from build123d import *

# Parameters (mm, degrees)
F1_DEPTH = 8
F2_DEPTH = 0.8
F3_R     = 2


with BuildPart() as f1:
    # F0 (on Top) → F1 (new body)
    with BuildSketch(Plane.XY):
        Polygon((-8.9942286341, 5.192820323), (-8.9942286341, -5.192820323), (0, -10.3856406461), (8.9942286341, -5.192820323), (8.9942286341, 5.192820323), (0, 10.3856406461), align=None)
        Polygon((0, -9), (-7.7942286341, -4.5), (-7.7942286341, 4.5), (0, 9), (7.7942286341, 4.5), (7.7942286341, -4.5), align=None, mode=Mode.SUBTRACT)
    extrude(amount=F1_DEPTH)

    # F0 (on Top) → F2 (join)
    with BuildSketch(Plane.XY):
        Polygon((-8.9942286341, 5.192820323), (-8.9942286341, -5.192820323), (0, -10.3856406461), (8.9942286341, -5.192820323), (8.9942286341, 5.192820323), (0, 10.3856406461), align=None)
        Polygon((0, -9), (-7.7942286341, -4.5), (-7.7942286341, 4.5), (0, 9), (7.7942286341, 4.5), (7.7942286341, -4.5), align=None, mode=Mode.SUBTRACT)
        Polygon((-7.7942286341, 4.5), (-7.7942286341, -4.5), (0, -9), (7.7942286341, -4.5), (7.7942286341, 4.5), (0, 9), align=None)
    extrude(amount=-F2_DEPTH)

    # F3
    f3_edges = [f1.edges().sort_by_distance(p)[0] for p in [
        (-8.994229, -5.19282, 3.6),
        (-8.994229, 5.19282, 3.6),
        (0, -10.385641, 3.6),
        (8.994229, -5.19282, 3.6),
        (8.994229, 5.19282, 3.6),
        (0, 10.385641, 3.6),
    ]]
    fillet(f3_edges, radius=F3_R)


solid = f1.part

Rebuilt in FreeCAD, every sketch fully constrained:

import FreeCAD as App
import Part
import Sketcher

V = App.Vector
Q = App.Units.Quantity


def edges_at(feature, points):
    """Names of the edges that pass closest to the given points."""
    edges = feature.Shape.Edges
    near = lambda p: min(range(len(edges)), key=lambda i: edges[i].distToShape(Part.Vertex(*p))[0])
    return sorted({f"Edge{near(p) + 1}" for p in points})


def add_polygon(sketch, points):
    """Adds a closed chain of lines whose ends are joined by coincident constraints."""
    first, n = sketch.GeometryCount, len(points)
    for a, b in zip(points, points[1:] + points[:1]):
        sketch.addGeometry(Part.LineSegment(App.Vector(*a, 0), App.Vector(*b, 0)), False)
    for i in range(n):
        sketch.addConstraint(Sketcher.Constraint("Coincident", first + i, 2, first + (i + 1) % n, 1))

doc = App.newDocument("Part")
body = doc.addObject("PartDesign::Body", "Body")

# Sketch on XY plane
sketch1 = body.newObject("Sketcher::SketchObject", "Sketch")
sketch1.AttachmentSupport = (doc.getObject("XY_Plane"), [""])
sketch1.MapMode = "FlatFace"
add_polygon(sketch1, [(-9, 5), (-9, -5), (0, -10), (9, -5), (9, 5), (0, 10)])  # lines 0-5
add_polygon(sketch1, [(8, -4), (0, -9), (-8, -4), (-8, 4), (0, 9), (8, 4)])  # lines 6-11
sketch1.addConstraint([
    Sketcher.Constraint("Vertical", 0),
    Sketcher.Constraint("Vertical", 3),
    Sketcher.Constraint("Vertical", 8),
    Sketcher.Constraint("Vertical", 11),
    Sketcher.Constraint("Symmetric", 0, 2, 3, 2, -1, 1),
    Sketcher.Constraint("Symmetric", 1, 2, 4, 2, -1, 1),
    Sketcher.Constraint("Symmetric", 6, 2, 9, 2, -1, 1),
    Sketcher.Constraint("Symmetric", 7, 2, 10, 2, -1, 1),
    Sketcher.Constraint("PointOnObject", 1, 2, -2),
    Sketcher.Constraint("PointOnObject", 6, 2, -2),
    Sketcher.Constraint("Parallel", 2, 5),
    Sketcher.Constraint("Parallel", 5, 6),
    Sketcher.Constraint("Parallel", 4, 7),
    Sketcher.Constraint("Parallel", 6, 9),
    Sketcher.Constraint("Horizontal", 0, 2, 2, 2),
    Sketcher.Constraint("DistanceY", 8, 1, 8, 2, 9.0),
    Sketcher.Constraint("Angle", 1, Q("-30 deg")),
    Sketcher.Constraint("Distance", 6, 9.0),
    Sketcher.Constraint("DistanceX", 0, 2, 7, 2, 1.2),
    Sketcher.Constraint("DistanceY", 0, 2, 0, 1, 10.385641),
])
pad1 = body.newObject("PartDesign::Pad", "Pad")
pad1.Profile = sketch1
pad1.Length = 8

# Sketch on XY plane
sketch2 = body.newObject("Sketcher::SketchObject", "Sketch001")
sketch2.AttachmentSupport = (doc.getObject("XY_Plane"), [""])
sketch2.MapMode = "FlatFace"
add_polygon(sketch2, [(-9, 5), (-9, -5), (0, -10), (9, -5), (9, 5), (0, 10)])  # lines 0-5
sketch2.addConstraint([
    Sketcher.Constraint("Vertical", 0),
    Sketcher.Constraint("Vertical", 3),
    Sketcher.Constraint("Symmetric", 0, 2, 3, 2, -1, 1),
    Sketcher.Constraint("Symmetric", 1, 2, 4, 2, -1, 1),
    Sketcher.Constraint("PointOnObject", 1, 2, -2),
    Sketcher.Constraint("Parallel", 2, 5),
    Sketcher.Constraint("Horizontal", 0, 2, 2, 2),
    Sketcher.Constraint("Angle", 1, Q("-30 deg")),
    Sketcher.Constraint("DistanceY", 0, 2, 0, 1, 10.385641),
    Sketcher.Constraint("Distance", 1, 10.385641),
])
pad2 = body.newObject("PartDesign::Pad", "Pad001")
pad2.Profile = sketch2
pad2.Length = 0.8
pad2.Reversed = True
doc.recompute()

fillet = body.newObject("PartDesign::Fillet", "Fillet")
fillet.Base = (pad2, edges_at(pad2, [
    (-8.994, -5.193, 3.6),
    (-8.994, 5.193, 3.6),
    (0, -10.386, 3.6),
    (8.994, -5.193, 3.6),
    (8.994, 5.193, 3.6),
    (0, 10.386, 3.6),
]))
fillet.Radius = 2

doc.recompute()
